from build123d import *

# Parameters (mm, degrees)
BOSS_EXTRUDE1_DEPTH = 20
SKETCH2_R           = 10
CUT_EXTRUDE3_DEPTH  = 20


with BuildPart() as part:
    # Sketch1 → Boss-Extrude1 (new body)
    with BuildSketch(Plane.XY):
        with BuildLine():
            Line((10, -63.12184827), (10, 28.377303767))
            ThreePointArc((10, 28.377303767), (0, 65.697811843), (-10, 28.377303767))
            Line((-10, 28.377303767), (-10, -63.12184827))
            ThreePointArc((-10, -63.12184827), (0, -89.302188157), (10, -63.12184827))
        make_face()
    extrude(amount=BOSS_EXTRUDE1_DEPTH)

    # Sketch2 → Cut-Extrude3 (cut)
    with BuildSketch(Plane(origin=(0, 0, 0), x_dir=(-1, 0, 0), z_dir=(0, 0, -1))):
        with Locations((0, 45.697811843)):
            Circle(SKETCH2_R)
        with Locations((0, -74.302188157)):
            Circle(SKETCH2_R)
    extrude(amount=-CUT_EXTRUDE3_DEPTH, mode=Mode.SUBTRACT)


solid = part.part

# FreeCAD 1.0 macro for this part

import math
import FreeCAD as App
import Part
import Sketcher
from FreeCAD import Vector

doc = App.newDocument("Part")
body = doc.addObject("PartDesign::Body", "Body")

sketch1 = doc.addObject("Sketcher::SketchObject", "Sketch")
body.addObject(sketch1)
sketch1.AttachmentSupport = (doc.XY_Plane, [""])
sketch1.MapMode = "FlatFace"
sketch1.addGeometry(Part.LineSegment(Vector(10, -63.121848, 0), Vector(10, 28.377304, 0)), False)
sketch1.addGeometry(Part.ArcOfCircle(Part.Circle(Vector(0, 45.697812, 0), Vector(0, 0, 1), 20), math.radians(-60), math.radians(240)), False)
sketch1.addGeometry(Part.LineSegment(Vector(-10, 28.377304, 0), Vector(-10, -63.121848, 0)), False)
sketch1.addGeometry(Part.ArcOfCircle(Part.Circle(Vector(0, -74.302188, 0), Vector(0, 0, 1), 15), math.radians(131.810315), math.radians(408.189685)), False)
sketch1.addConstraint(Sketcher.Constraint("Coincident", 0, 2, 1, 1))
sketch1.addConstraint(Sketcher.Constraint("Coincident", 1, 2, 2, 1))
sketch1.addConstraint(Sketcher.Constraint("Coincident", 2, 2, 3, 1))
sketch1.addConstraint(Sketcher.Constraint("Coincident", 3, 2, 0, 1))
sketch1.addConstraint(Sketcher.Constraint("Vertical", 0))
sketch1.addConstraint(Sketcher.Constraint("Vertical", 2))
sketch1.addConstraint(Sketcher.Constraint("Symmetric", 0, 2, 1, 2, -2))
sketch1.addConstraint(Sketcher.Constraint("PointOnObject", 3, 3, -2))
sketch1.addConstraint(Sketcher.Constraint("Radius", 1, 20.0))
sketch1.addConstraint(Sketcher.Constraint("Radius", 3, 15.0))
sketch1.addConstraint(Sketcher.Constraint("DistanceX", -1, 1, 0, 2, 10.0))
sketch1.addConstraint(Sketcher.Constraint("DistanceY", 3, 3, 1, 3, 120.0))
sketch1.addConstraint(Sketcher.Constraint("DistanceY", -1, 1, 1, 3, 45.697812))
pad1 = doc.addObject("PartDesign::Pad", "Pad")
body.addObject(pad1)
pad1.Profile = sketch1
pad1.Length = 20

sketch2 = doc.addObject("Sketcher::SketchObject", "Sketch001")
body.addObject(sketch2)
sketch2.AttachmentSupport = (doc.XY_Plane, [""])
sketch2.MapMode = "FlatFace"
sketch2.addGeometry(Part.Circle(Vector(0, 45.697812, 0), Vector(0, 0, 1), 10), False)
sketch2.addGeometry(Part.Circle(Vector(0, -74.302188, 0), Vector(0, 0, 1), 10), False)
sketch2.addConstraint(Sketcher.Constraint("Equal", 0, 1))
sketch2.addConstraint(Sketcher.Constraint("PointOnObject", 0, 3, -2))
sketch2.addConstraint(Sketcher.Constraint("PointOnObject", 1, 3, -2))
sketch2.addConstraint(Sketcher.Constraint("Diameter", 0, 20.0))
sketch2.addConstraint(Sketcher.Constraint("DistanceY", 1, 3, 0, 3, 120.0))
sketch2.addConstraint(Sketcher.Constraint("DistanceY", -1, 1, 0, 3, 45.697812))
pocket1 = doc.addObject("PartDesign::Pocket", "Pocket")
body.addObject(pocket1)
pocket1.Profile = sketch2
pocket1.Length = 20
pocket1.Reversed = True

doc.recompute()
